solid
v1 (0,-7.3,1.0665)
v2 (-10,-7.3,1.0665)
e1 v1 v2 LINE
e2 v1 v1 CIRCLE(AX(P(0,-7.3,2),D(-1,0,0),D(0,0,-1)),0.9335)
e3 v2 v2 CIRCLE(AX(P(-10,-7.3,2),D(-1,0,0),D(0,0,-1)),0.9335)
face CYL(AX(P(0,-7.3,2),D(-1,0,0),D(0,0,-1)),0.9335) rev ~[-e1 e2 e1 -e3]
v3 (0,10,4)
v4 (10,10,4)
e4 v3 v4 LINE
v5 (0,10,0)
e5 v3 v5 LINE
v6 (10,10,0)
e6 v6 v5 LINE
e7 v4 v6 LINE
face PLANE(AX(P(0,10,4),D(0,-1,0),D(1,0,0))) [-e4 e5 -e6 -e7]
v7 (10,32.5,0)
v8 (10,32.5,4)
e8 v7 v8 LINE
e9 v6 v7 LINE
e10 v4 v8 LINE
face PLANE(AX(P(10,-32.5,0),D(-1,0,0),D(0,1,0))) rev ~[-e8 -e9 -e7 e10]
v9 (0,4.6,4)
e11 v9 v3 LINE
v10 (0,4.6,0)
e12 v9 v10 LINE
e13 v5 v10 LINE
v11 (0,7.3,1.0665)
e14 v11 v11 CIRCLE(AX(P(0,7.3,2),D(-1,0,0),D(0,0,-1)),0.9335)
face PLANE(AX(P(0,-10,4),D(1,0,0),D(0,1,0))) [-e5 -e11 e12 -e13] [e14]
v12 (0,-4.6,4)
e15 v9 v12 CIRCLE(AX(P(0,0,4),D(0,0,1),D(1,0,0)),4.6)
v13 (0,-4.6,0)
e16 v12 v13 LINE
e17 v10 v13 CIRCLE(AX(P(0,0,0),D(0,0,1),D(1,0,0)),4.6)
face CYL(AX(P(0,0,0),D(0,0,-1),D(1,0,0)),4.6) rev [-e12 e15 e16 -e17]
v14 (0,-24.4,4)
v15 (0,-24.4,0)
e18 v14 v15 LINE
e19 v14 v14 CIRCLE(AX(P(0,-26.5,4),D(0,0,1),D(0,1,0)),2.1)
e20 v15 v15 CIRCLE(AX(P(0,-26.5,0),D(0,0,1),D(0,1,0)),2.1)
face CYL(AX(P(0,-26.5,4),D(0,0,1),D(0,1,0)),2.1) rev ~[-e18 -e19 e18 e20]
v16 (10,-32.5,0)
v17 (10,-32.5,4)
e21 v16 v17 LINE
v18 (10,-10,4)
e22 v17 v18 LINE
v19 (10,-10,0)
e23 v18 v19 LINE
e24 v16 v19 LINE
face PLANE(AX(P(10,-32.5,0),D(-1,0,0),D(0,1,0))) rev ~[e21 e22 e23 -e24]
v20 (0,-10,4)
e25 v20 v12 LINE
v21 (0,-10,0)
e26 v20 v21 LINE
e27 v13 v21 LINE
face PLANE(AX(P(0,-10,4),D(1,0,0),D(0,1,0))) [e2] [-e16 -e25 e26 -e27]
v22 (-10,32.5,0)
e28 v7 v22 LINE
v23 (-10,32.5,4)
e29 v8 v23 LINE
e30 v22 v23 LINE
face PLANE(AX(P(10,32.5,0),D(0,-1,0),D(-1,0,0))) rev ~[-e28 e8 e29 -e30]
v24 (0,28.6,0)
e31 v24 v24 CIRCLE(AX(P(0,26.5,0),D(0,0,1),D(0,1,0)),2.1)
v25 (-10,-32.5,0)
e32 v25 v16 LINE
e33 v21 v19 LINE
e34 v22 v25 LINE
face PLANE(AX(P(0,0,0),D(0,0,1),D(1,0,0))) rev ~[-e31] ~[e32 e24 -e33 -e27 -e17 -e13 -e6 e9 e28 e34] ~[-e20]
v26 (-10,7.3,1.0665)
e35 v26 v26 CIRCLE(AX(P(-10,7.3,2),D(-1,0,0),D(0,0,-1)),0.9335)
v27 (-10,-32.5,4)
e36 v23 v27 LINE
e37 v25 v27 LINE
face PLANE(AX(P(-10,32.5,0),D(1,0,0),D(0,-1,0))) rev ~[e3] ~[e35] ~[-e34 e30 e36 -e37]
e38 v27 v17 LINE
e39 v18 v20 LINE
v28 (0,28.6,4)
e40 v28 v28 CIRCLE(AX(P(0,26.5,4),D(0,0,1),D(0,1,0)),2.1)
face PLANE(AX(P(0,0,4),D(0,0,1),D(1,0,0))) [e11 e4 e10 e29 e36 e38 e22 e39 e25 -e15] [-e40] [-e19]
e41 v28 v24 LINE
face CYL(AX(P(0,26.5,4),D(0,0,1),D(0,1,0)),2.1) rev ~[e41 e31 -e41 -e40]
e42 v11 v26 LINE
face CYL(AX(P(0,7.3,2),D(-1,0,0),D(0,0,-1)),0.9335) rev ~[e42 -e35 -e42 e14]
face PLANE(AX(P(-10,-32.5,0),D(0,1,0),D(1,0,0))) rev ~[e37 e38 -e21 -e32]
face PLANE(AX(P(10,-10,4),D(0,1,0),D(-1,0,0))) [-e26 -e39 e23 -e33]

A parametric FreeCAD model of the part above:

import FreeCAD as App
import Part
import Sketcher
from FreeCAD import Vector
Q = App.Units.Quantity

doc = App.newDocument("Part")
body = doc.addObject("PartDesign::Body", "Body")

# Sketch on XY plane
sketch1 = doc.addObject("Sketcher::SketchObject", "Sketch")
body.addObject(sketch1)
sketch1.AttachmentSupport = (doc.XY_Plane, [""])
sketch1.MapMode = "FlatFace"
sketch1.addGeometry([
    Part.LineSegment(Vector(-10, 32.5, 0), Vector(-10, -32.5, 0)),  # 0
    Part.LineSegment(Vector(-10, -32.5, 0), Vector(10, -32.5, 0)),  # 1
    Part.LineSegment(Vector(10, -32.5, 0), Vector(10, 32.5, 0)),  # 2
    Part.LineSegment(Vector(10, 32.5, 0), Vector(-10, 32.5, 0)),  # 3
    Part.Circle(Vector(0, 0, 0), Vector(0, 0, 1), 4.6),  # 4
], False)
sketch1.addConstraint([
    Sketcher.Constraint("Coincident", 0, 2, 1, 1),
    Sketcher.Constraint("Coincident", 1, 2, 2, 1),
    Sketcher.Constraint("Coincident", 2, 2, 3, 1),
    Sketcher.Constraint("Coincident", 3, 2, 0, 1),
    Sketcher.Constraint("Vertical", 0),
    Sketcher.Constraint("Horizontal", 1),
    Sketcher.Constraint("Vertical", 2),
    Sketcher.Constraint("Horizontal", 3),
    Sketcher.Constraint("Coincident", 4, 3, -1, 1),
    Sketcher.Constraint("Symmetric", 0, 2, 2, 2, -1, 1),
    Sketcher.Constraint("DistanceX", 0, 2, -1, 1, Q("10 mm")),
    Sketcher.Constraint("Diameter", 4, Q("9.2 mm")),
    Sketcher.Constraint("DistanceY", 0, 2, 0, 1, Q("65 mm")),
])
pad1 = doc.addObject("PartDesign::Pad", "Pad")
body.addObject(pad1)
pad1.Profile = sketch1
pad1.Length = 4

# Sketch on XY plane
sketch2 = doc.addObject("Sketcher::SketchObject", "Sketch001")
body.addObject(sketch2)
sketch2.AttachmentSupport = (doc.XY_Plane, [""])
sketch2.MapMode = "FlatFace"
sketch2.AttachmentOffset = App.Placement(Vector(0, 0, 4), App.Rotation())
sketch2.addGeometry([
    Part.LineSegment(Vector(10, 10, 0), Vector(0, 10, 0)),
    Part.LineSegment(Vector(0, 10, 0), Vector(0, -10, 0)),
    Part.LineSegment(Vector(0, -10, 0), Vector(10, -10, 0)),
    Part.LineSegment(Vector(10, -10, 0), Vector(10, 10, 0)),
], False)
sketch2.addConstraint([
    Sketcher.Constraint("Coincident", 0, 2, 1, 1),
    Sketcher.Constraint("Coincident", 1, 2, 2, 1),
    Sketcher.Constraint("Coincident", 2, 2, 3, 1),
    Sketcher.Constraint("Coincident", 3, 2, 0, 1),
    Sketcher.Constraint("Horizontal", 0),
    Sketcher.Constraint("Vertical", 1),
    Sketcher.Constraint("Horizontal", 2),
    Sketcher.Constraint("Vertical", 3),
    Sketcher.Constraint("Symmetric", 0, 2, 1, 2, -1, 1),
    Sketcher.Constraint("DistanceX", 0, 2, 0, 1, Q("10 mm")),
    Sketcher.Constraint("DistanceY", -1, 1, 0, 2, Q("10 mm")),
])
pocket1 = doc.addObject("PartDesign::Pocket", "Pocket")
body.addObject(pocket1)
pocket1.Profile = sketch2
pocket1.Type = "UpToFirst"

# Sketch on XY plane
sketch3 = doc.addObject("Sketcher::SketchObject", "Sketch002")
body.addObject(sketch3)
sketch3.AttachmentSupport = (doc.XY_Plane, [""])
sketch3.MapMode = "FlatFace"
sketch3.AttachmentOffset = App.Placement(Vector(0, 0, 4), App.Rotation())
sketch3.addGeometry([
    Part.Circle(Vector(0, 26.5, 0), Vector(0, 0, 1), 2.1),
    Part.Circle(Vector(0, -26.5, 0), Vector(0, 0, 1), 2.1),
], False)
sketch3.addConstraint([
    Sketcher.Constraint("Equal", 0, 1),
    Sketcher.Constraint("Symmetric", 0, 3, 1, 3, -1, 1),
    Sketcher.Constraint("PointOnObject", 0, 3, -2),
    Sketcher.Constraint("Diameter", 0, Q("4.2 mm")),
    Sketcher.Constraint("DistanceY", 1, 3, 0, 3, Q("53 mm")),
])
pocket2 = doc.addObject("PartDesign::Pocket", "Pocket001")
body.addObject(pocket2)
pocket2.Profile = sketch3
pocket2.Length = 4

# Sketch on YZ plane
sketch4 = doc.addObject("Sketcher::SketchObject", "Sketch003")
body.addObject(sketch4)
sketch4.AttachmentSupport = (doc.YZ_Plane, [""])
sketch4.MapMode = "FlatFace"
sketch4.addGeometry(Part.Circle(Vector(7.3, 2, 0), Vector(0, 0, 1), 0.9335), False)
sketch4.addConstraint([
    Sketcher.Constraint("Diameter", 0, Q("1.867 mm")),
    Sketcher.Constraint("DistanceY", -1, 1, 0, 3, Q("2 mm")),
    Sketcher.Constraint("DistanceX", -1, 1, 0, 3, Q("7.3 mm")),
])
doc.recompute()
hole = doc.addObject("PartDesign::Hole", "Hole")
body.addObject(hole)
hole.Profile = sketch4
hole.ThreadType = "None"
hole.Diameter = 1.867
hole.DepthType = "Dimension"
hole.Depth = 10
hole.DrillPoint = "Flat"

# Sketch on YZ plane
sketch5 = doc.addObject("Sketcher::SketchObject", "Sketch004")
body.addObject(sketch5)
sketch5.AttachmentSupport = (doc.YZ_Plane, [""])
sketch5.MapMode = "FlatFace"
sketch5.addGeometry(Part.Circle(Vector(-7.3, 2, 0), Vector(0, 0, 1), 0.9335), False)
sketch5.addConstraint([
    Sketcher.Constraint("Diameter", 0, Q("1.867 mm")),
    Sketcher.Constraint("DistanceY", -1, 1, 0, 3, Q("2 mm")),
    Sketcher.Constraint("DistanceX", 0, 3, -1, 1, Q("7.3 mm")),
])
doc.recompute()
hole2 = doc.addObject("PartDesign::Hole", "Hole001")
body.addObject(hole2)
hole2.Profile = sketch5
hole2.ThreadType = "None"
hole2.Diameter = 1.867
hole2.DepthType = "Dimension"
hole2.Depth = 10
hole2.DrillPoint = "Flat"

doc.recompute()
